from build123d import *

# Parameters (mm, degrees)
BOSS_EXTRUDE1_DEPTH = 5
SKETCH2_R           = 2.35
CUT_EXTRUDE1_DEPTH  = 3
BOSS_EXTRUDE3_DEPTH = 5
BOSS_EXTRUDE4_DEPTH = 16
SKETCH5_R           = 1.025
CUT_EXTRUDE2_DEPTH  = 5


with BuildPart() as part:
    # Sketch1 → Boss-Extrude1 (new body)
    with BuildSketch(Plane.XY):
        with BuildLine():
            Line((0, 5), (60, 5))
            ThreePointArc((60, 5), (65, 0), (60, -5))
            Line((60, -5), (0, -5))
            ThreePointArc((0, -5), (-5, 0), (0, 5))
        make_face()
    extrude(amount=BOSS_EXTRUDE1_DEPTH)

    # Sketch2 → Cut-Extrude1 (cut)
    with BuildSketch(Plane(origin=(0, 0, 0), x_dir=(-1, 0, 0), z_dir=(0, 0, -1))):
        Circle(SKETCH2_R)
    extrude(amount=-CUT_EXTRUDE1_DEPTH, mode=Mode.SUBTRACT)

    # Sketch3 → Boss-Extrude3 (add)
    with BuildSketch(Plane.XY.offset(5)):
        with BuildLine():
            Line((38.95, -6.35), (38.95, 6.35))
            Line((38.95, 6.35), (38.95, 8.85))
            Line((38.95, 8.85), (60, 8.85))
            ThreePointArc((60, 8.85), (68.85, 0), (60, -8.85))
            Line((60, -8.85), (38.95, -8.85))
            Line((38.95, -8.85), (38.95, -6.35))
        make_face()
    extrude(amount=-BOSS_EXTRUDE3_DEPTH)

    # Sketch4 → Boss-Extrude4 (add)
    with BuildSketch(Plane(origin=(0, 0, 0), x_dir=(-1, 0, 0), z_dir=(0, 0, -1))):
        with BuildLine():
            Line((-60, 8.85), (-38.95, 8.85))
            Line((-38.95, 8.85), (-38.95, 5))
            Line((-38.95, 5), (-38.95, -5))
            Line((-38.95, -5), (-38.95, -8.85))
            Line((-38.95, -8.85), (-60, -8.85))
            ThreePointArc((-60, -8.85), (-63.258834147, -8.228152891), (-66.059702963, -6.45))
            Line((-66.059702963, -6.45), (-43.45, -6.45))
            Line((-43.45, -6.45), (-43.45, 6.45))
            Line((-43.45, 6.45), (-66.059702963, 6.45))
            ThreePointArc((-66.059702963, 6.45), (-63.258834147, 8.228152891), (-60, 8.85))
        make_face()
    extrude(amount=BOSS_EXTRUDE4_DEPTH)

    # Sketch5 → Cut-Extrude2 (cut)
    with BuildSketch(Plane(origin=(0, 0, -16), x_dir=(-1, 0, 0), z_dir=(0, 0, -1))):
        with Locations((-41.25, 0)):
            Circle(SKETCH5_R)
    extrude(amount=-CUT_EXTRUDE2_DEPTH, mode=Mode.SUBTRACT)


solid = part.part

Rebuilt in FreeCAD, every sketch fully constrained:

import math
import FreeCAD as App
import Part
import Sketcher

V = App.Vector
Q = App.Units.Quantity

doc = App.newDocument("Part")
body = doc.addObject("PartDesign::Body", "Body")

# Sketch on XY plane
sketch1 = body.newObject("Sketcher::SketchObject", "Sketch")
sketch1.AttachmentSupport = (doc.getObject("XY_Plane"), [""])
sketch1.MapMode = "FlatFace"
sketch1.addGeometry([
    Part.LineSegment(V(60, 5, 0), V(0, 5, 0)),
    Part.ArcOfCircle(Part.Circle(V(0, 0, 0), V(0, 0, 1), 5), math.radians(90), math.radians(270)),
    Part.LineSegment(V(0, -5, 0), V(60, -5, 0)),
    Part.ArcOfCircle(Part.Circle(V(60, 0, 0), V(0, 0, 1), 5), math.radians(-90), math.radians(90)),
], False)
sketch1.addConstraint([
    Sketcher.Constraint("Tangent", 0, 2, 1, 1),
    Sketcher.Constraint("Tangent", 1, 2, 2, 1),
    Sketcher.Constraint("Tangent", 2, 2, 3, 1),
    Sketcher.Constraint("Tangent", 3, 2, 0, 1),
    Sketcher.Constraint("Horizontal", 0),
    Sketcher.Constraint("Horizontal", 2),
    Sketcher.Constraint("Coincident", 1, 3, -1, 1),
    Sketcher.Constraint("Radius", 1, Q("5 mm")),
    Sketcher.Constraint("DistanceX", 0, 2, 0, 1, Q("60 mm")),
])
pad1 = body.newObject("PartDesign::Pad", "Pad")
pad1.Profile = sketch1
pad1.Length = 5

# Sketch on XY plane
sketch2 = body.newObject("Sketcher::SketchObject", "Sketch001")
sketch2.AttachmentSupport = (doc.getObject("XY_Plane"), [""])
sketch2.MapMode = "FlatFace"
sketch2.addGeometry(Part.Circle(V(0, 0, 0), V(0, 0, 1), 2.4), False)
sketch2.addConstraint([
    Sketcher.Constraint("Coincident", 0, 3, -1, 1),
    Sketcher.Constraint("Diameter", 0, Q("4.7 mm")),
])
pocket1 = body.newObject("PartDesign::Pocket", "Pocket")
pocket1.Profile = sketch2
pocket1.Length = 3
pocket1.Reversed = True

# Sketch on XY plane
sketch3 = body.newObject("Sketcher::SketchObject", "Sketch002")
sketch3.AttachmentSupport = (doc.getObject("XY_Plane"), [""])
sketch3.MapMode = "FlatFace"
sketch3.AttachmentOffset = App.Placement(V(0, 0, 5), App.Rotation())
sketch3.addGeometry([
    Part.LineSegment(V(60, 9, 0), V(39, 9, 0)),
    Part.LineSegment(V(39, 9, 0), V(39, -9, 0)),
    Part.LineSegment(V(39, -9, 0), V(60, -9, 0)),
    Part.ArcOfCircle(Part.Circle(V(60, 0, 0), V(0, 0, 1), 9), math.radians(-90), math.radians(90)),
], False)
sketch3.addConstraint([
    Sketcher.Constraint("Coincident", 0, 2, 1, 1),
    Sketcher.Constraint("Coincident", 1, 2, 2, 1),
    Sketcher.Constraint("Tangent", 2, 2, 3, 1),
    Sketcher.Constraint("Tangent", 3, 2, 0, 1),
    Sketcher.Constraint("Horizontal", 0),
    Sketcher.Constraint("Vertical", 1),
    Sketcher.Constraint("Horizontal", 2),
    Sketcher.Constraint("PointOnObject", 3, 3, -1),
    Sketcher.Constraint("Radius", 3, Q("8.85 mm")),
    Sketcher.Constraint("DistanceX", -1, 1, 3, 3, Q("60 mm")),
    Sketcher.Constraint("DistanceX", 0, 2, 0, 1, Q("21.05 mm")),
])
pad2 = body.newObject("PartDesign::Pad", "Pad001")
pad2.Profile = sketch3
pad2.Length = 5
pad2.Reversed = True

# Sketch on XY plane
sketch4 = body.newObject("Sketcher::SketchObject", "Sketch003")
sketch4.AttachmentSupport = (doc.getObject("XY_Plane"), [""])
sketch4.MapMode = "FlatFace"
sketch4.addGeometry([
    Part.LineSegment(V(39, 9, 0), V(60, 9, 0)),  # 0
    Part.ArcOfCircle(Part.Circle(V(60, 0, 0), V(0, 0, 1), 9), math.radians(47), math.radians(90)),  # 1
    Part.LineSegment(V(66, 6, 0), V(43, 6, 0)),  # 2
    Part.LineSegment(V(43, 6, 0), V(43, -6, 0)),  # 3
    Part.LineSegment(V(43, -6, 0), V(66, -6, 0)),  # 4
    Part.ArcOfCircle(Part.Circle(V(60, 0, 0), V(0, 0, 1), 9), math.radians(-90), math.radians(-47)),  # 5
    Part.LineSegment(V(60, -9, 0), V(39, -9, 0)),  # 6
    Part.LineSegment(V(39, -9, 0), V(39, 9, 0)),  # 7
], False)
sketch4.addConstraint([
    Sketcher.Constraint("Tangent", 0, 2, 1, 2),
    Sketcher.Constraint("Coincident", 1, 1, 2, 1),
    Sketcher.Constraint("Coincident", 2, 2, 3, 1),
    Sketcher.Constraint("Coincident", 3, 2, 4, 1),
    Sketcher.Constraint("Coincident", 4, 2, 5, 2),
    Sketcher.Constraint("Tangent", 5, 1, 6, 1),
    Sketcher.Constraint("Coincident", 6, 2, 7, 1),
    Sketcher.Constraint("Coincident", 7, 2, 0, 1),
    Sketcher.Constraint("Horizontal", 0),
    Sketcher.Constraint("Horizontal", 2),
    Sketcher.Constraint("Vertical", 3),
    Sketcher.Constraint("Horizontal", 4),
    Sketcher.Constraint("Horizontal", 6),
    Sketcher.Constraint("Vertical", 7),
    Sketcher.Constraint("Coincident", 5, 3, 1, 3),
    Sketcher.Constraint("Equal", 1, 5),
    Sketcher.Constraint("Symmetric", 1, 1, 4, 2, -1),
    Sketcher.Constraint("Radius", 1, Q("8.85 mm")),
    Sketcher.Constraint("DistanceY", 3, 2, 3, 1, Q("12.9 mm")),
    Sketcher.Constraint("DistanceX", -1, 1, 1, 3, Q("60 mm")),
    Sketcher.Constraint("DistanceX", 0, 1, 0, 2, Q("21.05 mm")),
    Sketcher.Constraint("DistanceX", 6, 2, 3, 2, Q("4.5 mm")),
])
pad3 = body.newObject("PartDesign::Pad", "Pad002")
pad3.Profile = sketch4
pad3.Length = 16
pad3.Reversed = True

# Sketch on XY plane
sketch5 = body.newObject("Sketcher::SketchObject", "Sketch004")
sketch5.AttachmentSupport = (doc.getObject("XY_Plane"), [""])
sketch5.MapMode = "FlatFace"
sketch5.AttachmentOffset = App.Placement(V(0, 0, -16), App.Rotation())
sketch5.addGeometry(Part.Circle(V(41.2, 0, 0), V(0, 0, 1), 1), False)
sketch5.addConstraint([
    Sketcher.Constraint("PointOnObject", 0, 3, -1),
    Sketcher.Constraint("Diameter", 0, Q("2.05 mm")),
    Sketcher.Constraint("DistanceX", -1, 1, 0, 3, Q("41.25 mm")),
])
pocket2 = body.newObject("PartDesign::Pocket", "Pocket001")
pocket2.Profile = sketch5
pocket2.Length = 5
pocket2.Reversed = True

doc.recompute()
